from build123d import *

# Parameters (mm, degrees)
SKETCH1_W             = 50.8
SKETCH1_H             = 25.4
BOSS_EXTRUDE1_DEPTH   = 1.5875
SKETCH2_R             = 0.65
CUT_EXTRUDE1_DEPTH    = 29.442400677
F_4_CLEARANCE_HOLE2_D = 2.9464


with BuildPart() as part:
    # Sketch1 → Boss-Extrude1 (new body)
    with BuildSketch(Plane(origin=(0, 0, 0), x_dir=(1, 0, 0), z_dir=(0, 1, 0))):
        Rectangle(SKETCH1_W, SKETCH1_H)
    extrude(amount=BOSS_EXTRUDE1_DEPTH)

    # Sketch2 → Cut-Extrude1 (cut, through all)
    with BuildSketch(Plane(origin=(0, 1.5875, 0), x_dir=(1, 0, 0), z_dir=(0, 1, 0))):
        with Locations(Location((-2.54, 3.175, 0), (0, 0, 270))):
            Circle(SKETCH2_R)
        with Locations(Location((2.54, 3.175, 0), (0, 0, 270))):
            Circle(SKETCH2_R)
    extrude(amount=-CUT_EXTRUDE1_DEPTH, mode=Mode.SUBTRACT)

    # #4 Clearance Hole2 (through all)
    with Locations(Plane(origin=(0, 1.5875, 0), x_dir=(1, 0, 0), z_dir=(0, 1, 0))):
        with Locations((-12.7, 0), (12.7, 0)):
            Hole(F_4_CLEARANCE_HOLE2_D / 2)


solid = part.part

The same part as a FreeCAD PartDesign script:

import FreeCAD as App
import Part
import Sketcher
Q = App.Units.Quantity


def add_polygon(sketch, points):
    """Adds a closed chain of lines whose ends are joined by coincident constraints."""
    first, n = sketch.GeometryCount, len(points)
    for a, b in zip(points, points[1:] + points[:1]):
        sketch.addGeometry(Part.LineSegment(App.Vector(*a, 0), App.Vector(*b, 0)), False)
    for i in range(n):
        sketch.addConstraint(Sketcher.Constraint("Coincident", first + i, 2, first + (i + 1) % n, 1))

doc = App.newDocument("Part")
params = doc.addObject("Spreadsheet::Sheet", "Params")
for row, (alias, value) in enumerate([
    ("sketch1_width", "2 in"),
    ("sketch1_height", "1 in"),
    ("pad1_length", "0.0625 in"),
    ("sketch3_diameter", "0.116 in"),
    ("hole_diameter", "0.116 in"),
], start=1):
    params.set(f"A{row}", alias)
    params.set(f"B{row}", "=" + value)
    params.setAlias(f"B{row}", alias)

body = doc.addObject("PartDesign::Body", "Body")

sketch1 = body.newObject("Sketcher::SketchObject", "Sketch")
sketch1.AttachmentSupport = (doc.getObject("XZ_Plane"), [""])
sketch1.MapMode = "FlatFace"
add_polygon(sketch1, [(-25, -13), (-25, 13), (25, 13), (25, -13)])
sketch1.addConstraint([
    Sketcher.Constraint("Vertical", 0),
    Sketcher.Constraint("Horizontal", 1),
    Sketcher.Constraint("Vertical", 2),
    Sketcher.Constraint("Horizontal", 3),
    Sketcher.Constraint("Symmetric", 0, 2, 2, 2, -1, 1),
    Sketcher.Constraint("DistanceX", 1, 1, 1, 2, Q("2 in")),
    Sketcher.Constraint("DistanceY", 0, 1, 0, 2, Q("1 in")),
])
sketch1.setExpression("Constraints[9]", "Params.sketch1_width")
sketch1.setExpression("Constraints[10]", "Params.sketch1_height")
pad1 = body.newObject("PartDesign::Pad", "Pad")
pad1.Profile = sketch1
pad1.setExpression("Length", "Params.pad1_length")
pad1.Reversed = True

sketch2 = body.newObject("Sketcher::SketchObject", "Sketch001")
sketch2.AttachmentSupport = (doc.getObject("XZ_Plane"), [""])
sketch2.MapMode = "FlatFace"
sketch2.AttachmentOffset = App.Placement(App.Vector(0, 0, -0.0625 * 25.4), App.Rotation())
sketch2.addGeometry([
    Part.Circle(App.Vector(-2.5, -3.2, 0), App.Vector(0, 0, 1), 0.7),
    Part.Circle(App.Vector(2.5, -3.2, 0), App.Vector(0, 0, 1), 0.7),
], False)
sketch2.addConstraint([
    Sketcher.Constraint("Equal", 0, 1),
    Sketcher.Constraint("Symmetric", 0, 3, 1, 3, -2),
    Sketcher.Constraint("DistanceX", 0, 3, -1, 1, Q("0.1 in")),
    Sketcher.Constraint("Diameter", 0, Q("1.3 mm")),
    Sketcher.Constraint("DistanceY", 0, 3, -1, 1, Q("0.125 in")),
])
pocket1 = body.newObject("PartDesign::Pocket", "Pocket")
pocket1.Profile = sketch2
pocket1.Type = "ThroughAll"
pocket1.Reversed = True

sketch3 = body.newObject("Sketcher::SketchObject", "Sketch002")
sketch3.AttachmentSupport = (doc.getObject("XZ_Plane"), [""])
sketch3.MapMode = "FlatFace"
sketch3.AttachmentOffset = App.Placement(App.Vector(0, 0, -0.0625 * 25.4), App.Rotation())
sketch3.addGeometry([
    Part.Circle(App.Vector(-12.7, 0, 0), App.Vector(0, 0, 1), 1.5),
    Part.Circle(App.Vector(12.7, 0, 0), App.Vector(0, 0, 1), 1.5),
], False)
sketch3.addConstraint([
    Sketcher.Constraint("Equal", 0, 1),
    Sketcher.Constraint("Symmetric", 0, 3, 1, 3, -1, 1),
    Sketcher.Constraint("PointOnObject", 0, 3, -1),
    Sketcher.Constraint("Diameter", 0, Q("0.116 in")),
    Sketcher.Constraint("DistanceX", 0, 3, 1, 3, Q("1 in")),
])
sketch3.setExpression("Constraints[3]", "Params.sketch3_diameter")
doc.recompute()
hole = body.newObject("PartDesign::Hole", "Hole")
hole.Profile = sketch3
hole.ThreadType = "None"
hole.setExpression("Diameter", "Params.hole_diameter")
hole.DepthType = "ThroughAll"
hole.Reversed = True

doc.recompute()
